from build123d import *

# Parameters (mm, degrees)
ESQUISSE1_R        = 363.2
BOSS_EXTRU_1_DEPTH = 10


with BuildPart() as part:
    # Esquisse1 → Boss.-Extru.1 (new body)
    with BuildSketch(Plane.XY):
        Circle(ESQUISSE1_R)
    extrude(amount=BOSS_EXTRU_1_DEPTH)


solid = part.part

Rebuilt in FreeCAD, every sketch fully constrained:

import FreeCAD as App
import Part
import Sketcher

doc = App.newDocument("Part")
params = doc.addObject("Spreadsheet::Sheet", "Params")
for row, (alias, value) in enumerate([
    ("sketch1_diameter", "726.4 mm"),
    ("pad1_length", "10 mm"),
], start=1):
    params.set(f"A{row}", alias)
    params.set(f"B{row}", "=" + value)
    params.setAlias(f"B{row}", alias)

body = doc.addObject("PartDesign::Body", "Body")

# Sketch on XY plane
sketch1 = doc.addObject("Sketcher::SketchObject", "Sketch")
body.addObject(sketch1)
sketch1.AttachmentSupport = (doc.XY_Plane, [""])
sketch1.MapMode = "FlatFace"
sketch1.addGeometry(Part.Circle(App.Vector(0, 0, 0), App.Vector(0, 0, 1), 363.2), False)
sketch1.addConstraint(Sketcher.Constraint("Coincident", 0, 3, -1, 1))
sketch1.addConstraint(Sketcher.Constraint("Diameter", 0, 726.4))
sketch1.setExpression("Constraints[1]", "Params.sketch1_diameter")
pad1 = doc.addObject("PartDesign::Pad", "Pad")
body.addObject(pad1)
pad1.Profile = sketch1
pad1.setExpression("Length", "Params.pad1_length")

doc.recompute()
